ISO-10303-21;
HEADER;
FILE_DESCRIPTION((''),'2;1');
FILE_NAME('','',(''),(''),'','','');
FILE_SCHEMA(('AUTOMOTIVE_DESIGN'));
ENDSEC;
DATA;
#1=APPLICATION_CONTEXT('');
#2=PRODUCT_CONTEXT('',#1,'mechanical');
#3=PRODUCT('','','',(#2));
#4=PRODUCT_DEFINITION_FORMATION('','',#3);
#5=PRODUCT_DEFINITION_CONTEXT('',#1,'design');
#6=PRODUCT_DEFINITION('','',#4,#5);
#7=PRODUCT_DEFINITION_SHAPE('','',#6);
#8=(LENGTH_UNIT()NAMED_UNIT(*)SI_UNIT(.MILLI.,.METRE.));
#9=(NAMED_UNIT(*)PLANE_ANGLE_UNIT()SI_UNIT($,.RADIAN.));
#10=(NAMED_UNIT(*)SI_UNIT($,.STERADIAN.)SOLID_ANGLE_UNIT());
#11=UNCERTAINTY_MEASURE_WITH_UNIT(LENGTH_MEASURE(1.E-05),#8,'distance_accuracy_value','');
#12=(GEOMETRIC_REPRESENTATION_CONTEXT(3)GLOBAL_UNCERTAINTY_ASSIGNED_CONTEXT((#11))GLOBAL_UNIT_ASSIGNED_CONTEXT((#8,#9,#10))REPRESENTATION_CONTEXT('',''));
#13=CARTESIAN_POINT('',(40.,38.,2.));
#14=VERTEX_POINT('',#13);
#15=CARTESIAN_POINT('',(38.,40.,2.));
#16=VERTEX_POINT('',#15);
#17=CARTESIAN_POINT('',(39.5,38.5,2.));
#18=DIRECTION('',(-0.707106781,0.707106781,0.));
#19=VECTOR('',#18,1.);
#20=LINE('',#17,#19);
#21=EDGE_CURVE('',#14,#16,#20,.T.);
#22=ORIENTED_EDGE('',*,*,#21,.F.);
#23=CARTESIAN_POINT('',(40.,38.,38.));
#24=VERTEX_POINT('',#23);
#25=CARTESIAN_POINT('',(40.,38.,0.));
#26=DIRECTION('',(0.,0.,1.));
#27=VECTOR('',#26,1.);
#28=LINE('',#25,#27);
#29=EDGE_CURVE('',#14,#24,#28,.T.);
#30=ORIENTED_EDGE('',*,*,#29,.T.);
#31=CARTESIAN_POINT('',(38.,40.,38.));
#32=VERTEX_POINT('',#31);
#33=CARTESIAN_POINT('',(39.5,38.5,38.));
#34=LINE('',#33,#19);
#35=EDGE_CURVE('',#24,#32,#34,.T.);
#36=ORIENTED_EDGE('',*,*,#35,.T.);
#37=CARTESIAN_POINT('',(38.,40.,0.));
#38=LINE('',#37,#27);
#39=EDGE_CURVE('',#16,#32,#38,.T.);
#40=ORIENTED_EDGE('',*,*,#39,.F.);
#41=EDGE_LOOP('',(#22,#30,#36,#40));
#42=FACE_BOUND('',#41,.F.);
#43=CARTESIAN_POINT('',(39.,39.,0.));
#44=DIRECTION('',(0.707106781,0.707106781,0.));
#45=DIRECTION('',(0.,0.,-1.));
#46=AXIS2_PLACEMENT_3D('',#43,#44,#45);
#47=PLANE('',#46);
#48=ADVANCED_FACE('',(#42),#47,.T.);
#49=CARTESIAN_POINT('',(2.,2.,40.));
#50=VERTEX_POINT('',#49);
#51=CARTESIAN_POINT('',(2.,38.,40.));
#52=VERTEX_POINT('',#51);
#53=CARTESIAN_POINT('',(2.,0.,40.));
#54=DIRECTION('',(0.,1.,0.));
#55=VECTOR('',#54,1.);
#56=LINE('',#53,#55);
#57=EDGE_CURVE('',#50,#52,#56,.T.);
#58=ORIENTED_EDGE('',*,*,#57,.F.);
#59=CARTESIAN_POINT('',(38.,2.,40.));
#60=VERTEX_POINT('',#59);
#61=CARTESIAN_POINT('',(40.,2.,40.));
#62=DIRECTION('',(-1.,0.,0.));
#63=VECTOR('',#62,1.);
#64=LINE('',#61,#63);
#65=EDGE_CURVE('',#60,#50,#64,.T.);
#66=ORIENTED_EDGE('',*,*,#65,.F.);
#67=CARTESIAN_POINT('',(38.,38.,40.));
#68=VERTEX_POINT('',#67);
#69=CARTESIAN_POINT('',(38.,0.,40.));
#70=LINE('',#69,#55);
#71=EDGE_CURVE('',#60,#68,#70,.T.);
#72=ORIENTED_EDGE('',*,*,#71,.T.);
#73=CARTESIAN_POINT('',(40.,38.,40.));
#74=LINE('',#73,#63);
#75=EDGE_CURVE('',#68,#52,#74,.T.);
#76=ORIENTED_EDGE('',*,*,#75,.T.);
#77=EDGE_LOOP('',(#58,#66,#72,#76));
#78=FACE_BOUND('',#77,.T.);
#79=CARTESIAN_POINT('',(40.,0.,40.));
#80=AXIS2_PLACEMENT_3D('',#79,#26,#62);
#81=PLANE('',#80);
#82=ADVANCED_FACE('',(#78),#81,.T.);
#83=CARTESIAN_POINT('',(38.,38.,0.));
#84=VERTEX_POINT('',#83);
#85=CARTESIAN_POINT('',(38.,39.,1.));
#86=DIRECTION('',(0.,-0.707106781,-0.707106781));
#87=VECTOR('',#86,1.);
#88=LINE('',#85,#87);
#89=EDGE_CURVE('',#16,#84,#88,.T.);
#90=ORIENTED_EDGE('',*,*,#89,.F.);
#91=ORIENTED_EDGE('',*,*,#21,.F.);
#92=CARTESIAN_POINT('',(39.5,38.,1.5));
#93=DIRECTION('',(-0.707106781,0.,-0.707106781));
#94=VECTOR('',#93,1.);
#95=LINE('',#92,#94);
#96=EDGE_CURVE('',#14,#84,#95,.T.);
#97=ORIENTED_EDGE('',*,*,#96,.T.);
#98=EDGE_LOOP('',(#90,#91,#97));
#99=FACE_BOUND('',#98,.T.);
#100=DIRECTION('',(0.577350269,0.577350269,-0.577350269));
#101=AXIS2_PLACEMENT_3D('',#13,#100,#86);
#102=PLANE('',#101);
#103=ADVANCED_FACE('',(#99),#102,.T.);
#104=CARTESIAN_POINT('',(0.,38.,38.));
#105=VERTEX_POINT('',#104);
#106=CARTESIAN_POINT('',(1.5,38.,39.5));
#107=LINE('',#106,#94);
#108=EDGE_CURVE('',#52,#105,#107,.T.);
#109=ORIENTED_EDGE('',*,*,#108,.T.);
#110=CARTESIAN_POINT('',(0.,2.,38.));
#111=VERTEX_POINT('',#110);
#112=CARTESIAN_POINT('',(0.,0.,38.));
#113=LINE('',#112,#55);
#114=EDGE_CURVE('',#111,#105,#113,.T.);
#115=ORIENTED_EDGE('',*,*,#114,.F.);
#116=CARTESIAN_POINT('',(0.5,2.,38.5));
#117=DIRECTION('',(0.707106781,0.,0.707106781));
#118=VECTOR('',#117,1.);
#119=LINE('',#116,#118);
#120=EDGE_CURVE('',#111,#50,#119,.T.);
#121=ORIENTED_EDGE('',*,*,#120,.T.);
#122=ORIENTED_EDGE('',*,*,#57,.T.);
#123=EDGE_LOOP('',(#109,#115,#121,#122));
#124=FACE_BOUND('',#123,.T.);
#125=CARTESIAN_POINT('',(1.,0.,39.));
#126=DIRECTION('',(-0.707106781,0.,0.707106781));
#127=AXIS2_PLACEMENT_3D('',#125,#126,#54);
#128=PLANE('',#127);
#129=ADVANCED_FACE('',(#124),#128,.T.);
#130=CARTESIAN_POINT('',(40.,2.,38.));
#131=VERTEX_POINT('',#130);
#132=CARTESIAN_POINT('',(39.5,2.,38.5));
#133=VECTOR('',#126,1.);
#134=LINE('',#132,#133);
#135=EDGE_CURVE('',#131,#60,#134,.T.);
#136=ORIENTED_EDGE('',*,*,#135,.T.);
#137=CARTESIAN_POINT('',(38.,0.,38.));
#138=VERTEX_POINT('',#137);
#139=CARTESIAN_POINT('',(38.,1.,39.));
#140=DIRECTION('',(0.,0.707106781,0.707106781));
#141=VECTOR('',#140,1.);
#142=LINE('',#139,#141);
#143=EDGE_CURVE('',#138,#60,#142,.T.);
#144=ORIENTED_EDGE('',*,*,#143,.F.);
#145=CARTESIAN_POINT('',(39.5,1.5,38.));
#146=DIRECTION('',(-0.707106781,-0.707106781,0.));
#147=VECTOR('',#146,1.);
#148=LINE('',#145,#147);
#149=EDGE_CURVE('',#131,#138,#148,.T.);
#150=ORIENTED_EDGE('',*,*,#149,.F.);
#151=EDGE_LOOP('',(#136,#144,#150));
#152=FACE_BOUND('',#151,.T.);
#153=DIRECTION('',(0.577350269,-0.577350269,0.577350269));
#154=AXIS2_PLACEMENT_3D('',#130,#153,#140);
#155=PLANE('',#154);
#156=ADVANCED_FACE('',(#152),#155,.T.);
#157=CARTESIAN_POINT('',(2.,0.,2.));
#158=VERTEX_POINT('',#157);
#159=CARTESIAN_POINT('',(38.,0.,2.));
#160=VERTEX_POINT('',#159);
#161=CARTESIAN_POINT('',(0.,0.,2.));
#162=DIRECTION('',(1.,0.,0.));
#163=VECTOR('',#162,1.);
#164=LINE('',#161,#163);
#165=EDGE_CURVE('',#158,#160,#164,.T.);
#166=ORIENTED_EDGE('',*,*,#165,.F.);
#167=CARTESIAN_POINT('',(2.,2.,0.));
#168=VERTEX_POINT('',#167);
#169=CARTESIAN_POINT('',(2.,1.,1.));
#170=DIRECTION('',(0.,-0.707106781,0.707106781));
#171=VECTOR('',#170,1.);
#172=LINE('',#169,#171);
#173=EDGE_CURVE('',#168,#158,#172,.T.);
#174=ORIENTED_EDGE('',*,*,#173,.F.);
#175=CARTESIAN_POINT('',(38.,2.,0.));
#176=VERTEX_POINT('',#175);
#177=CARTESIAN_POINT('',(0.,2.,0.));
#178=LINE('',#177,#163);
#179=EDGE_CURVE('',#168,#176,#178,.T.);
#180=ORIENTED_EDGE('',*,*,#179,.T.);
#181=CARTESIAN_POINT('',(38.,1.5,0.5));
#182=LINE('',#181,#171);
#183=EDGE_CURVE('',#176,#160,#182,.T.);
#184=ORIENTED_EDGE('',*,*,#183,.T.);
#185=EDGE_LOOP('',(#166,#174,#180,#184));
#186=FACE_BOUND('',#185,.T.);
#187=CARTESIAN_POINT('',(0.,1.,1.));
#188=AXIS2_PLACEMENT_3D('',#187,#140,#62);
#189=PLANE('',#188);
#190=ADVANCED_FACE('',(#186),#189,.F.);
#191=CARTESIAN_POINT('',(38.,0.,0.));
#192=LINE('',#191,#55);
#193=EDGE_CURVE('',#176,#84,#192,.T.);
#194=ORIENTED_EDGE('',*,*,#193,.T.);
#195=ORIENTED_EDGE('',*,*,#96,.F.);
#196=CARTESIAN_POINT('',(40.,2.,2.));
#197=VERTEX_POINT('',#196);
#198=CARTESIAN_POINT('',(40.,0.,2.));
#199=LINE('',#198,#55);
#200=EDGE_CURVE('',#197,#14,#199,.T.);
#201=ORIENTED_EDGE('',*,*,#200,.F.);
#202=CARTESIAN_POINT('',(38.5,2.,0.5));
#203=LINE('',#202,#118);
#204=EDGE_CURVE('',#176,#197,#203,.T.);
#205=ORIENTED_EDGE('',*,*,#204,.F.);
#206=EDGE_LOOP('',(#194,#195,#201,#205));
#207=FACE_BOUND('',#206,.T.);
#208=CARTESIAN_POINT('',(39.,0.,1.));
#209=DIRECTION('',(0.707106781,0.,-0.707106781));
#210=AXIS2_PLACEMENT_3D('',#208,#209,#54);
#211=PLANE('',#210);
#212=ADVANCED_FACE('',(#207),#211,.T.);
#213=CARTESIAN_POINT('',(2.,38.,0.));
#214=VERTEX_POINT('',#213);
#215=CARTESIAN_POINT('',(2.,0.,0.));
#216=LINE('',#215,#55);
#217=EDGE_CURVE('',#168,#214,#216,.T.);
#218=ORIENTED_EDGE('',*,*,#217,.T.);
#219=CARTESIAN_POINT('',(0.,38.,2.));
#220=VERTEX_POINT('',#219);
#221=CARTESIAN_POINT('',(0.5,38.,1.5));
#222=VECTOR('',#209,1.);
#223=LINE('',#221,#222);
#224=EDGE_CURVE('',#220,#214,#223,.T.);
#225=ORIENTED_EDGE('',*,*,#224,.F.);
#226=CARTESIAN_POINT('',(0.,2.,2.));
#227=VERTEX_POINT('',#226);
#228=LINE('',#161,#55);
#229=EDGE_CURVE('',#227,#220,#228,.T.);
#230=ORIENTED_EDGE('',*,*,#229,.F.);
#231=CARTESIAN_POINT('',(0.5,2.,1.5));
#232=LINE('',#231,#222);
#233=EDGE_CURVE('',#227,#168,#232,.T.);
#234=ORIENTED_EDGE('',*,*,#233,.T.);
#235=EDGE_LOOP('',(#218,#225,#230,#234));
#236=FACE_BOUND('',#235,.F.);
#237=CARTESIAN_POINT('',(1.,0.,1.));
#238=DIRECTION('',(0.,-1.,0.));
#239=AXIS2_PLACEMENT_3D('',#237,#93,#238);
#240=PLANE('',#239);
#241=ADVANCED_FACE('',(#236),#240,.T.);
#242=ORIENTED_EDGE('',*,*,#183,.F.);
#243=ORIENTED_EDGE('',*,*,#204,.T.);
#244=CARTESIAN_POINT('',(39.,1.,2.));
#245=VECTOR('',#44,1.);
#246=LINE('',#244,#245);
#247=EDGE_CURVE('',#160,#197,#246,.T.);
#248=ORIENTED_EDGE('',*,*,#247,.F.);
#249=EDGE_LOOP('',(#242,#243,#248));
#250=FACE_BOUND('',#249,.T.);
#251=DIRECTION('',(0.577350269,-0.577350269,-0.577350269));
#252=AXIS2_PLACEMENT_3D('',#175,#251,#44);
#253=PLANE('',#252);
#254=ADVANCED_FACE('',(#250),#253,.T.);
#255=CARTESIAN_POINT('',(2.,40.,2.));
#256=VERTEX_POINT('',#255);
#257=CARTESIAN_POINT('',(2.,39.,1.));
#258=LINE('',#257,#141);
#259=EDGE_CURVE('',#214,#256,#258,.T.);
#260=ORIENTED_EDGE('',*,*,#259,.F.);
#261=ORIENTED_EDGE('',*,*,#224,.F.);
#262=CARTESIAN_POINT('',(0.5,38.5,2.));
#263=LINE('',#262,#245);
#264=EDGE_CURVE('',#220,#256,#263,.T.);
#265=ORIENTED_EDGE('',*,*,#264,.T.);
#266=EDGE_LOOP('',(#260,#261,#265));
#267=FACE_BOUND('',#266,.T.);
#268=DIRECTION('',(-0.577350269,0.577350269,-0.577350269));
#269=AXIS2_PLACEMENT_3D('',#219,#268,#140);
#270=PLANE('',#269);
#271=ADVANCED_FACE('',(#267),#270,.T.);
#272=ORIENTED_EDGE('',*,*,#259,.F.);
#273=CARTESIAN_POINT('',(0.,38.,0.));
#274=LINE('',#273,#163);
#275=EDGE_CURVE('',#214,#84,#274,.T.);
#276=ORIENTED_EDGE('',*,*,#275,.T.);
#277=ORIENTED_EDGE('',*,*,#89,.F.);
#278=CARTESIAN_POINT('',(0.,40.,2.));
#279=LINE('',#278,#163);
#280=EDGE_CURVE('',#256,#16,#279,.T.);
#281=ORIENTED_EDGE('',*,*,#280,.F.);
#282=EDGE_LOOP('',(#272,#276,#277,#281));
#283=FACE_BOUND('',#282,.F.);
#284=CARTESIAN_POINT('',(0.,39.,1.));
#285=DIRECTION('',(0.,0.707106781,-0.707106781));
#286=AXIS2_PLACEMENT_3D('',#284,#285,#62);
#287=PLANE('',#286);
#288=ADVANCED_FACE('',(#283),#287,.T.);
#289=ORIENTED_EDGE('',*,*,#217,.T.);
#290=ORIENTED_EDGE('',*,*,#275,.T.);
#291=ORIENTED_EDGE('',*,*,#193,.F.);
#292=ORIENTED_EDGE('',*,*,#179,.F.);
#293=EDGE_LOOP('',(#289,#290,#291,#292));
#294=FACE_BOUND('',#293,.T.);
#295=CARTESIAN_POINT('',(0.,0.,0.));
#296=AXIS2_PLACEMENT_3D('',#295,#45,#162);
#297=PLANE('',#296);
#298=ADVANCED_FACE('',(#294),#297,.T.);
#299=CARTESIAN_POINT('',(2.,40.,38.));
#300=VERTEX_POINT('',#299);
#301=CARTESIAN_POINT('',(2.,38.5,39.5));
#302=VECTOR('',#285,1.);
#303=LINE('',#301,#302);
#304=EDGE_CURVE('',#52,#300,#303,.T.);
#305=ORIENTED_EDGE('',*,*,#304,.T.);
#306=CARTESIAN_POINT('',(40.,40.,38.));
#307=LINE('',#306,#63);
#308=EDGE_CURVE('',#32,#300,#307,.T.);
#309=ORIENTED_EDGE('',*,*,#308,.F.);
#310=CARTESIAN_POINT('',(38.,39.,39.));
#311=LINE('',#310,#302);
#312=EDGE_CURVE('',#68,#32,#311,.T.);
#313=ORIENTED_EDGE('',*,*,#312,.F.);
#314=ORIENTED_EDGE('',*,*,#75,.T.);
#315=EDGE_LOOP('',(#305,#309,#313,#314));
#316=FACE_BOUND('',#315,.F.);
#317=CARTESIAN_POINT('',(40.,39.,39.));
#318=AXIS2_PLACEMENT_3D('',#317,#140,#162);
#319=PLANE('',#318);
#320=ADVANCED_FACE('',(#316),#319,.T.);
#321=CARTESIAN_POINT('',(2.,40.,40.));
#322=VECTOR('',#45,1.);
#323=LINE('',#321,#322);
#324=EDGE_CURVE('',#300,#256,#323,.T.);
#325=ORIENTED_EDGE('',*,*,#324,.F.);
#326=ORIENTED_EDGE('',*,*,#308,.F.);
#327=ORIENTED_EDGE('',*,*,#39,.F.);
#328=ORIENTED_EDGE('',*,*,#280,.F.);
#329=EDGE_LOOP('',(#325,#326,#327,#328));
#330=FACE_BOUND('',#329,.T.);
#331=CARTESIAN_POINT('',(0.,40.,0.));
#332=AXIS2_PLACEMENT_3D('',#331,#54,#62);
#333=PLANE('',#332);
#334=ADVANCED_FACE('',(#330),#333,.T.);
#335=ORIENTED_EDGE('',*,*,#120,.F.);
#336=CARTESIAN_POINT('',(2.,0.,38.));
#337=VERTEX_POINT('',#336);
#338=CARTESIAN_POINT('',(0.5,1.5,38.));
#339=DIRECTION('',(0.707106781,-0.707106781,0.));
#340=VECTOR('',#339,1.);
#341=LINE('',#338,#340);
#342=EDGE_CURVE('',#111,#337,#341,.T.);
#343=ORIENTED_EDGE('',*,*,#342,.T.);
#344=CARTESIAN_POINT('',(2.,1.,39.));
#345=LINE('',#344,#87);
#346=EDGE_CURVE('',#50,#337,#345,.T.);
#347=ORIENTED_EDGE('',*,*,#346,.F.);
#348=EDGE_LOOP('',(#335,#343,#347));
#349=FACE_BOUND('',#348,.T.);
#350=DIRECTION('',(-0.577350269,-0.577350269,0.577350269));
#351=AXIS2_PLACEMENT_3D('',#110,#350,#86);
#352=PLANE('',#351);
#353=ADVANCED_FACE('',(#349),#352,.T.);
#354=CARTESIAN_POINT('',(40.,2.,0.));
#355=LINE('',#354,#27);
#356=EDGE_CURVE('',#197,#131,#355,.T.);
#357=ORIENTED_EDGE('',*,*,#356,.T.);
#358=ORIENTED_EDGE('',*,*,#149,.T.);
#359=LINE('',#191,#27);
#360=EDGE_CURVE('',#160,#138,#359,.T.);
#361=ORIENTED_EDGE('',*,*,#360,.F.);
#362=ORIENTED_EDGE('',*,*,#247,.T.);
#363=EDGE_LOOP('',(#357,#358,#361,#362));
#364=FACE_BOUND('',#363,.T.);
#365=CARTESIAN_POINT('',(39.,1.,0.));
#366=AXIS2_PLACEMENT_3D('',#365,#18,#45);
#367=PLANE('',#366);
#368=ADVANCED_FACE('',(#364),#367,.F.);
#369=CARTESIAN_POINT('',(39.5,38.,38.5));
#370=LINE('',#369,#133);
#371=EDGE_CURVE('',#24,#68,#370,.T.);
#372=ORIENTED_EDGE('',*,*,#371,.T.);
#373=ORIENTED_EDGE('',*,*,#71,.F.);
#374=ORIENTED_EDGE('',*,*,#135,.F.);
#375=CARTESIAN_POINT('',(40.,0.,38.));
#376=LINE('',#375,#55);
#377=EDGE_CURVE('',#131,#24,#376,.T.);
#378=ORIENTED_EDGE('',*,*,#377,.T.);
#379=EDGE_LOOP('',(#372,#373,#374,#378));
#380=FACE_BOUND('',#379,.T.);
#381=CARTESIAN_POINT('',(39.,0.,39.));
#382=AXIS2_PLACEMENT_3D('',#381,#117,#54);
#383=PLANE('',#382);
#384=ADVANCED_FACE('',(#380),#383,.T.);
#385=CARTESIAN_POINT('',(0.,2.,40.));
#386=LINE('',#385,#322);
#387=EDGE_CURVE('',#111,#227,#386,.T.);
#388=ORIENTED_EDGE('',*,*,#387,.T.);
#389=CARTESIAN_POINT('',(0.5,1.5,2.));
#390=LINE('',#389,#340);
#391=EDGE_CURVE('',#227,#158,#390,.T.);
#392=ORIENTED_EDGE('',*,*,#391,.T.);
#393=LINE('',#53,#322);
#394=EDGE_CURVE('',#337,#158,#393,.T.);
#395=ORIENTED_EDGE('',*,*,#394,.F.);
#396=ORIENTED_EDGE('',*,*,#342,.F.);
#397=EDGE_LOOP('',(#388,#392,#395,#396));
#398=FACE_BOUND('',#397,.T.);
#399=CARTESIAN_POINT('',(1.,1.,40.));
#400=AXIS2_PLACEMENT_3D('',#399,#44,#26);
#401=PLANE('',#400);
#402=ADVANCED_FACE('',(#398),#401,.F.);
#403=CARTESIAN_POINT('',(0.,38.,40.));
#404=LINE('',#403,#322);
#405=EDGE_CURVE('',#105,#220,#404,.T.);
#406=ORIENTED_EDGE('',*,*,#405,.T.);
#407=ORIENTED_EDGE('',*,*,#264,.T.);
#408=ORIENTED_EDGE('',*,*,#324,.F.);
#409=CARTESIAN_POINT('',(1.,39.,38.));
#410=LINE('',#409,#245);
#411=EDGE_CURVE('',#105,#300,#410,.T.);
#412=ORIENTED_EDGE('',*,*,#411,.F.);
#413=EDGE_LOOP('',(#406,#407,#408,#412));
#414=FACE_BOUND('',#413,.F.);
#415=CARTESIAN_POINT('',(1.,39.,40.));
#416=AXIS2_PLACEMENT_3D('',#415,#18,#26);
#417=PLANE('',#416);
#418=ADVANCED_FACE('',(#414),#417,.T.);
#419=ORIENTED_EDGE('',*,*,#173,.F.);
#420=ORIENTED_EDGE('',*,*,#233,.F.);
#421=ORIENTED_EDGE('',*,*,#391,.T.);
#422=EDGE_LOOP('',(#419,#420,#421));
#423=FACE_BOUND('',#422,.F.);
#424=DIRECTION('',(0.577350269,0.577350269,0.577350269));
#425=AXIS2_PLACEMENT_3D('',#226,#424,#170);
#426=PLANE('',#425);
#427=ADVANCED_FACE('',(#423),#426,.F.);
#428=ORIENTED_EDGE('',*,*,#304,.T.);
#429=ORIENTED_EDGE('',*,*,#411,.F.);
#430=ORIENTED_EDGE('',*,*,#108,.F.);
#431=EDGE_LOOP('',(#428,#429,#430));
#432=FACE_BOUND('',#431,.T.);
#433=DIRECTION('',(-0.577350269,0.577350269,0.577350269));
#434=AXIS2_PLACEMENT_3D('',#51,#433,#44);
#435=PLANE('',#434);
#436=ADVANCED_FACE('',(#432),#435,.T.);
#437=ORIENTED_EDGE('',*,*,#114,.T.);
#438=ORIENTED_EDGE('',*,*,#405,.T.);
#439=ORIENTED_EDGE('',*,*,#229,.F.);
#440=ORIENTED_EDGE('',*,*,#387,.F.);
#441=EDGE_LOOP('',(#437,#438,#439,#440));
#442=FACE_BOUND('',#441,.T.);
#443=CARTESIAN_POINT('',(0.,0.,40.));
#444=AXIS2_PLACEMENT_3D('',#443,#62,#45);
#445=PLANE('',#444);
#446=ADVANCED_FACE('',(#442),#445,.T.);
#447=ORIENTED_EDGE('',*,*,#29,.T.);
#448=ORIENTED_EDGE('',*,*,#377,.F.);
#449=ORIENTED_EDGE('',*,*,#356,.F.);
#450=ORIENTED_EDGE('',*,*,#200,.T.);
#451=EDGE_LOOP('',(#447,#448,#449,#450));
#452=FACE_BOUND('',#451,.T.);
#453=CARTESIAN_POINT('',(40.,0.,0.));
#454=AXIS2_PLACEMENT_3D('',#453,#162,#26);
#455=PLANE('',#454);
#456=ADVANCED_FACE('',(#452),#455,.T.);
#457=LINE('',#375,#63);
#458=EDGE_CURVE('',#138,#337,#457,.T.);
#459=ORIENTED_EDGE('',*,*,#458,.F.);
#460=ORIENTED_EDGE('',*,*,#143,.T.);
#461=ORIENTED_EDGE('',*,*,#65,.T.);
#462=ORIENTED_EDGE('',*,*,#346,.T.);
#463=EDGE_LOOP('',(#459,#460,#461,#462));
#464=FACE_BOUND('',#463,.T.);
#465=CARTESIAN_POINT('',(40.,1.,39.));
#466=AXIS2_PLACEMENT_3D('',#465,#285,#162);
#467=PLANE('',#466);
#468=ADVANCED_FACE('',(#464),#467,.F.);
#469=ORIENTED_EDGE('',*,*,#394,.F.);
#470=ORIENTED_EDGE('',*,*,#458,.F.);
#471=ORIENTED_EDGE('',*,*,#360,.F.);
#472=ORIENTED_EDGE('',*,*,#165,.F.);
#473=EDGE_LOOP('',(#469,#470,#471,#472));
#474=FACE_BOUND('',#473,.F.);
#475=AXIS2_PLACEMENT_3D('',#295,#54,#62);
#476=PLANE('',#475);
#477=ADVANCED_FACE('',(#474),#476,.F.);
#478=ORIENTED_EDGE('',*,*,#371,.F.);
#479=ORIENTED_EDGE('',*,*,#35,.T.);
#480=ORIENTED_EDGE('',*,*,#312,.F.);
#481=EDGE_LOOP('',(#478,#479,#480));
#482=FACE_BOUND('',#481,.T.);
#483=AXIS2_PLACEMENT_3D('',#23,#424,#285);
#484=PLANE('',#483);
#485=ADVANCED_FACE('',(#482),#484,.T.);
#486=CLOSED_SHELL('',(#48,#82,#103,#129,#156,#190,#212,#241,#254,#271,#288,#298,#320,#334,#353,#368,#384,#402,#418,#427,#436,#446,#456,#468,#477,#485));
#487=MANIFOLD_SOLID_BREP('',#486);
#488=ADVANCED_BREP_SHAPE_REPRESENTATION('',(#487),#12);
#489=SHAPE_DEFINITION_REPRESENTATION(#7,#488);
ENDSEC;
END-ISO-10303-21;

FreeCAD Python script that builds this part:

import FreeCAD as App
import Part
import Sketcher


def add_polygon(sketch, points):
    """Adds a closed chain of lines whose ends are joined by coincident constraints."""
    first, n = sketch.GeometryCount, len(points)
    for a, b in zip(points, points[1:] + points[:1]):
        sketch.addGeometry(Part.LineSegment(App.Vector(*a, 0), App.Vector(*b, 0)), False)
    for i in range(n):
        sketch.addConstraint(Sketcher.Constraint("Coincident", first + i, 2, first + (i + 1) % n, 1))

doc = App.newDocument("Part")
body = doc.addObject("PartDesign::Body", "Body")

sketch1 = body.newObject("Sketcher::SketchObject", "Sketch")
sketch1.AttachmentSupport = (doc.getObject("XZ_Plane"), [""])
sketch1.MapMode = "FlatFace"
add_polygon(sketch1, [(40, 0), (0, 0), (0, 40), (40, 40)])
sketch1.addConstraint(Sketcher.Constraint("Horizontal", 0))
sketch1.addConstraint(Sketcher.Constraint("Vertical", 1))
sketch1.addConstraint(Sketcher.Constraint("Horizontal", 2))
sketch1.addConstraint(Sketcher.Constraint("Vertical", 3))
sketch1.addConstraint(Sketcher.Constraint("Coincident", 0, 2, -1, 1))
sketch1.addConstraint(Sketcher.Constraint("Equal", 2, 1))
sketch1.addConstraint(Sketcher.Constraint("DistanceX", 0, 2, 0, 1, 40.0))
pad1 = body.newObject("PartDesign::Pad", "Pad")
pad1.Profile = sketch1
pad1.Length = 40
pad1.Reversed = True
doc.recompute()

chamfer = body.newObject("PartDesign::Chamfer", "Chamfer")
chamfer.Base = (pad1, ["Edge1"])
chamfer.UseAllEdges = True
chamfer.Size = 2

doc.recompute()
